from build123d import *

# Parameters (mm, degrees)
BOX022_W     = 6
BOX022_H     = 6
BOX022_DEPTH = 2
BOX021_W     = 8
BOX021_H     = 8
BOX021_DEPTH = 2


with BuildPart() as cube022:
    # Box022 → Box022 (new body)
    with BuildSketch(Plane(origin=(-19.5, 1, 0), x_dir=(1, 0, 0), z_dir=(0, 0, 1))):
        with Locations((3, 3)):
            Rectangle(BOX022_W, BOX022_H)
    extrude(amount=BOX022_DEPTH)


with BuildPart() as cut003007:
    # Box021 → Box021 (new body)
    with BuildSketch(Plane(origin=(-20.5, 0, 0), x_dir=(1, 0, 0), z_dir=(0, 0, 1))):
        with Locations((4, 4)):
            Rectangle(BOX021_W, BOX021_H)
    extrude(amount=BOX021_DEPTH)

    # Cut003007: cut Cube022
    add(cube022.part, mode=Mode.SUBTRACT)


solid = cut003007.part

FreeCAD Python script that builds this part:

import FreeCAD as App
import Part
import Sketcher
from FreeCAD import Vector


def add_polygon(sketch, points):
    """Adds a closed chain of lines whose ends are joined by coincident constraints."""
    first, n = sketch.GeometryCount, len(points)
    for a, b in zip(points, points[1:] + points[:1]):
        sketch.addGeometry(Part.LineSegment(App.Vector(*a, 0), App.Vector(*b, 0)), False)
    for i in range(n):
        sketch.addConstraint(Sketcher.Constraint("Coincident", first + i, 2, first + (i + 1) % n, 1))

doc = App.newDocument("Part")
body = doc.addObject("PartDesign::Body", "Body")

sketch1 = doc.addObject("Sketcher::SketchObject", "Sketch")
body.addObject(sketch1)
sketch1.AttachmentSupport = (doc.XY_Plane, [""])
sketch1.MapMode = "FlatFace"
add_polygon(sketch1, [(-20, 7), (-20, 1), (-14, 1), (-14, 7)])
sketch1.addConstraint([
    Sketcher.Constraint("Vertical", 0),
    Sketcher.Constraint("Horizontal", 1),
    Sketcher.Constraint("Vertical", 2),
    Sketcher.Constraint("Horizontal", 3),
    Sketcher.Constraint("Equal", 3, 0),
    Sketcher.Constraint("DistanceX", 1, 1, 1, 2, 6.0),
    Sketcher.Constraint("DistanceY", -1, 1, 0, 2, 1.0),
    Sketcher.Constraint("DistanceX", 0, 2, -1, 1, 19.5),
])
pad1 = doc.addObject("PartDesign::Pad", "Pad")
body.addObject(pad1)
pad1.Profile = sketch1
pad1.Length = 2
body2 = doc.addObject("PartDesign::Body", "Body001")

sketch2 = doc.addObject("Sketcher::SketchObject", "Sketch001")
body2.addObject(sketch2)
sketch2.AttachmentSupport = (doc.getObject("XY_Plane001"), [""])
sketch2.MapMode = "FlatFace"
add_polygon(sketch2, [(-20, 8), (-20, 0), (-12, 0), (-12, 8)])
sketch2.addConstraint([
    Sketcher.Constraint("Vertical", 0),
    Sketcher.Constraint("Horizontal", 1),
    Sketcher.Constraint("Vertical", 2),
    Sketcher.Constraint("Horizontal", 3),
    Sketcher.Constraint("PointOnObject", 0, 2, -1),
    Sketcher.Constraint("Equal", 3, 0),
    Sketcher.Constraint("DistanceX", 1, 1, 1, 2, 8.0),
    Sketcher.Constraint("DistanceX", 0, 2, -1, 1, 20.5),
])
pad2 = doc.addObject("PartDesign::Pad", "Pad001")
body2.addObject(pad2)
pad2.Profile = sketch2
pad2.Length = 2
doc.recompute()

boolean = doc.addObject("PartDesign::Boolean", "Boolean")
body2.addObject(boolean)
boolean.Type = "Cut"
boolean.addObjects([body])

doc.recompute()
